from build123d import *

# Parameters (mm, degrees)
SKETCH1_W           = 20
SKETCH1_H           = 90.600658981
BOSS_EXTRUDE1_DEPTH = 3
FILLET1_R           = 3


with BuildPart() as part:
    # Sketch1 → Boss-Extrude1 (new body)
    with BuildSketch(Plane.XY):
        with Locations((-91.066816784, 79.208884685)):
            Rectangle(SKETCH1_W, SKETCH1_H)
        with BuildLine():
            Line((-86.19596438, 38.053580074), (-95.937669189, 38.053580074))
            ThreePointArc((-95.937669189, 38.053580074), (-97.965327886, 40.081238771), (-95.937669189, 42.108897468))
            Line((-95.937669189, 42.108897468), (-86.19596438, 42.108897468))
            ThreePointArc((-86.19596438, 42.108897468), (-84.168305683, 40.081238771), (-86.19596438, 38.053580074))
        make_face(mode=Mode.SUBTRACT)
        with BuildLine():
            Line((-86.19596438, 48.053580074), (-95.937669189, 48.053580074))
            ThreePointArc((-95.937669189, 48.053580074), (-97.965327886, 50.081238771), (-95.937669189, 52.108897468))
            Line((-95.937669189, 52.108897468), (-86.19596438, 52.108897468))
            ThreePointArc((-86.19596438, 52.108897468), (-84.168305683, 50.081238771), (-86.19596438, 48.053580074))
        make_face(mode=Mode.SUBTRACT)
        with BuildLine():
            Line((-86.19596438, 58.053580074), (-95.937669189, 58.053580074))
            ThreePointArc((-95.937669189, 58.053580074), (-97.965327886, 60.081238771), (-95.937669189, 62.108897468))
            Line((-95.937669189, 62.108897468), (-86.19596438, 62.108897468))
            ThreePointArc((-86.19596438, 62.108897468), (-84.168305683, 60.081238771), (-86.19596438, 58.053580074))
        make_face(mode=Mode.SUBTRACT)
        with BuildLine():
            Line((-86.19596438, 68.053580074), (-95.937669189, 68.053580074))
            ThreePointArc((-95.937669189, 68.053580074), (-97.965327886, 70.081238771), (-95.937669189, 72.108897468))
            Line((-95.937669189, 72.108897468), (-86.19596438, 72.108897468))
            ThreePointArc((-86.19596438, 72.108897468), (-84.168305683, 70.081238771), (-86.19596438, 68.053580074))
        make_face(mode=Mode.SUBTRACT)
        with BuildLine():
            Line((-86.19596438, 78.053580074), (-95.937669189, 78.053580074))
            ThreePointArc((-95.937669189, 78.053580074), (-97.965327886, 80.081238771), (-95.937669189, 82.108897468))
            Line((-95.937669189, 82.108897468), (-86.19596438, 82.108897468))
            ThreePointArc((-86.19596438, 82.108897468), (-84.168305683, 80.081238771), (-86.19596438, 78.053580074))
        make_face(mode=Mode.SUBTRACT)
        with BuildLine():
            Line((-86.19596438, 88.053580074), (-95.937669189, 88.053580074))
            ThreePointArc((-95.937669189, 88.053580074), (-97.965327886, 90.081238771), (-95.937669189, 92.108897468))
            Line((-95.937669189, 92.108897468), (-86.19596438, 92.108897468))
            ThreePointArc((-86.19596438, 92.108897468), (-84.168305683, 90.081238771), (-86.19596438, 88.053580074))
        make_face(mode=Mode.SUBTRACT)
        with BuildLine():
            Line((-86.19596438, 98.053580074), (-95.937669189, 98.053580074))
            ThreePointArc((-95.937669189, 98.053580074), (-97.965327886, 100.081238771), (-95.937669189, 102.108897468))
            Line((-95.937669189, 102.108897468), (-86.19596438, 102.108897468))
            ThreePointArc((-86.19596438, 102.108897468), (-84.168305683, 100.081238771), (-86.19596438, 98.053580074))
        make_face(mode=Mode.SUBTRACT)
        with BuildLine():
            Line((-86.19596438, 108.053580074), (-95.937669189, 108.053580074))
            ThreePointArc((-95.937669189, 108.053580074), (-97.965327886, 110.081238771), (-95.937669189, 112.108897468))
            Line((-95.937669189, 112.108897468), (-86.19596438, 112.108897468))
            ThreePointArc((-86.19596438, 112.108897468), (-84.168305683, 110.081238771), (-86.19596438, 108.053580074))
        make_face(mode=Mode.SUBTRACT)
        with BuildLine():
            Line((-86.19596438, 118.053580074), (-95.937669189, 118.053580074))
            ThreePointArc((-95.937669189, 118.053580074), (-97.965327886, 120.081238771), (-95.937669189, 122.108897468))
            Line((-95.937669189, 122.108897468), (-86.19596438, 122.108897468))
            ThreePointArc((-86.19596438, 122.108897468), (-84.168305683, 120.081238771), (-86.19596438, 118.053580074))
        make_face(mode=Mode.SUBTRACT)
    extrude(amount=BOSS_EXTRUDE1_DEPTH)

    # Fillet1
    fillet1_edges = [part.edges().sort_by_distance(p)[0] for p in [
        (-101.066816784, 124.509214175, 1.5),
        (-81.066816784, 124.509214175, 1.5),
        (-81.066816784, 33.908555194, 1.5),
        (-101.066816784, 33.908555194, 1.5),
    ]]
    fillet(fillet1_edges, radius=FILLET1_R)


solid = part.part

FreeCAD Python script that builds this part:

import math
import FreeCAD as App
import Part
import Sketcher
from FreeCAD import Vector
Q = App.Units.Quantity


def edges_at(feature, points):
    """Names of the edges that pass closest to the given points."""
    edges = feature.Shape.Edges
    near = lambda p: min(range(len(edges)), key=lambda i: edges[i].distToShape(Part.Vertex(*p))[0])
    return sorted({f"Edge{near(p) + 1}" for p in points})


def add_polygon(sketch, points):
    """Adds a closed chain of lines whose ends are joined by coincident constraints."""
    first, n = sketch.GeometryCount, len(points)
    for a, b in zip(points, points[1:] + points[:1]):
        sketch.addGeometry(Part.LineSegment(App.Vector(*a, 0), App.Vector(*b, 0)), False)
    for i in range(n):
        sketch.addConstraint(Sketcher.Constraint("Coincident", first + i, 2, first + (i + 1) % n, 1))

doc = App.newDocument("Part")
body = doc.addObject("PartDesign::Body", "Body")

# Sketch on XY plane
sketch1 = doc.addObject("Sketcher::SketchObject", "Sketch")
body.addObject(sketch1)
sketch1.AttachmentSupport = (doc.XY_Plane, [""])
sketch1.MapMode = "FlatFace"
add_polygon(sketch1, [(-101.1, 124.5), (-101.1, 33.9), (-81.1, 33.9), (-81.1, 124.5)])  # lines 0-3
sketch1.addGeometry(Part.ArcOfCircle(Part.Circle(Vector(-86.2, 40.1, 0), Vector(0, 0, 1), 2), math.radians(-90), math.radians(90)), False)  # 4
sketch1.addGeometry(Part.LineSegment(Vector(-86.2, 38.1, 0), Vector(-95.9, 38.1, 0)), False)  # 5
sketch1.addGeometry(Part.ArcOfCircle(Part.Circle(Vector(-95.9, 40.1, 0), Vector(0, 0, 1), 2), math.radians(90), math.radians(270)), False)  # 6
sketch1.addGeometry(Part.LineSegment(Vector(-95.9, 42.1, 0), Vector(-86.2, 42.1, 0)), False)  # 7
sketch1.addGeometry(Part.ArcOfCircle(Part.Circle(Vector(-86.2, 50.1, 0), Vector(0, 0, 1), 2), math.radians(-90), math.radians(90)), False)  # 8
sketch1.addGeometry(Part.LineSegment(Vector(-86.2, 48.1, 0), Vector(-95.9, 48.1, 0)), False)  # 9
sketch1.addGeometry(Part.ArcOfCircle(Part.Circle(Vector(-95.9, 50.1, 0), Vector(0, 0, 1), 2), math.radians(90), math.radians(270)), False)  # 10
sketch1.addGeometry(Part.LineSegment(Vector(-95.9, 52.1, 0), Vector(-86.2, 52.1, 0)), False)  # 11
sketch1.addGeometry(Part.ArcOfCircle(Part.Circle(Vector(-86.2, 60.1, 0), Vector(0, 0, 1), 2), math.radians(-90), math.radians(90)), False)  # 12
sketch1.addGeometry(Part.LineSegment(Vector(-86.2, 58.1, 0), Vector(-95.9, 58.1, 0)), False)  # 13
sketch1.addGeometry(Part.ArcOfCircle(Part.Circle(Vector(-95.9, 60.1, 0), Vector(0, 0, 1), 2), math.radians(90), math.radians(270)), False)  # 14
sketch1.addGeometry(Part.LineSegment(Vector(-95.9, 62.1, 0), Vector(-86.2, 62.1, 0)), False)  # 15
sketch1.addGeometry(Part.ArcOfCircle(Part.Circle(Vector(-86.2, 70.1, 0), Vector(0, 0, 1), 2), math.radians(-90), math.radians(90)), False)  # 16
sketch1.addGeometry(Part.LineSegment(Vector(-86.2, 68.1, 0), Vector(-95.9, 68.1, 0)), False)  # 17
sketch1.addGeometry(Part.ArcOfCircle(Part.Circle(Vector(-95.9, 70.1, 0), Vector(0, 0, 1), 2), math.radians(90), math.radians(270)), False)  # 18
sketch1.addGeometry(Part.LineSegment(Vector(-95.9, 72.1, 0), Vector(-86.2, 72.1, 0)), False)  # 19
sketch1.addGeometry(Part.ArcOfCircle(Part.Circle(Vector(-86.2, 80.1, 0), Vector(0, 0, 1), 2), math.radians(-90), math.radians(90)), False)  # 20
sketch1.addGeometry(Part.LineSegment(Vector(-86.2, 78.1, 0), Vector(-95.9, 78.1, 0)), False)  # 21
sketch1.addGeometry(Part.ArcOfCircle(Part.Circle(Vector(-95.9, 80.1, 0), Vector(0, 0, 1), 2), math.radians(90), math.radians(270)), False)  # 22
sketch1.addGeometry(Part.LineSegment(Vector(-95.9, 82.1, 0), Vector(-86.2, 82.1, 0)), False)  # 23
sketch1.addGeometry(Part.ArcOfCircle(Part.Circle(Vector(-86.2, 90.1, 0), Vector(0, 0, 1), 2), math.radians(-90), math.radians(90)), False)  # 24
sketch1.addGeometry(Part.LineSegment(Vector(-86.2, 88.1, 0), Vector(-95.9, 88.1, 0)), False)  # 25
sketch1.addGeometry(Part.ArcOfCircle(Part.Circle(Vector(-95.9, 90.1, 0), Vector(0, 0, 1), 2), math.radians(90), math.radians(270)), False)  # 26
sketch1.addGeometry(Part.LineSegment(Vector(-95.9, 92.1, 0), Vector(-86.2, 92.1, 0)), False)  # 27
sketch1.addGeometry(Part.ArcOfCircle(Part.Circle(Vector(-86.2, 100.1, 0), Vector(0, 0, 1), 2), math.radians(-90), math.radians(90)), False)  # 28
sketch1.addGeometry(Part.LineSegment(Vector(-86.2, 98.1, 0), Vector(-95.9, 98.1, 0)), False)  # 29
sketch1.addGeometry(Part.ArcOfCircle(Part.Circle(Vector(-95.9, 100.1, 0), Vector(0, 0, 1), 2), math.radians(90), math.radians(270)), False)  # 30
sketch1.addGeometry(Part.LineSegment(Vector(-95.9, 102.1, 0), Vector(-86.2, 102.1, 0)), False)  # 31
sketch1.addGeometry(Part.ArcOfCircle(Part.Circle(Vector(-86.2, 110.1, 0), Vector(0, 0, 1), 2), math.radians(-90), math.radians(90)), False)  # 32
sketch1.addGeometry(Part.LineSegment(Vector(-86.2, 108.1, 0), Vector(-95.9, 108.1, 0)), False)  # 33
sketch1.addGeometry(Part.ArcOfCircle(Part.Circle(Vector(-95.9, 110.1, 0), Vector(0, 0, 1), 2), math.radians(90), math.radians(270)), False)  # 34
sketch1.addGeometry(Part.LineSegment(Vector(-95.9, 112.1, 0), Vector(-86.2, 112.1, 0)), False)  # 35
sketch1.addGeometry(Part.ArcOfCircle(Part.Circle(Vector(-86.2, 120.1, 0), Vector(0, 0, 1), 2), math.radians(-90), math.radians(90)), False)  # 36
sketch1.addGeometry(Part.LineSegment(Vector(-86.2, 118.1, 0), Vector(-95.9, 118.1, 0)), False)  # 37
sketch1.addGeometry(Part.ArcOfCircle(Part.Circle(Vector(-95.9, 120.1, 0), Vector(0, 0, 1), 2), math.radians(90), math.radians(270)), False)  # 38
sketch1.addGeometry(Part.LineSegment(Vector(-95.9, 122.1, 0), Vector(-86.2, 122.1, 0)), False)  # 39
sketch1.addConstraint([
    Sketcher.Constraint("Tangent", 4, 1, 5, 1),
    Sketcher.Constraint("Tangent", 5, 2, 6, 2),
    Sketcher.Constraint("Tangent", 6, 1, 7, 1),
    Sketcher.Constraint("Tangent", 7, 2, 4, 2),
    Sketcher.Constraint("Tangent", 8, 1, 9, 1),
    Sketcher.Constraint("Tangent", 9, 2, 10, 2),
    Sketcher.Constraint("Tangent", 10, 1, 11, 1),
    Sketcher.Constraint("Tangent", 11, 2, 8, 2),
    Sketcher.Constraint("Tangent", 12, 1, 13, 1),
    Sketcher.Constraint("Tangent", 13, 2, 14, 2),
    Sketcher.Constraint("Tangent", 14, 1, 15, 1),
    Sketcher.Constraint("Tangent", 15, 2, 12, 2),
    Sketcher.Constraint("Tangent", 16, 1, 17, 1),
    Sketcher.Constraint("Tangent", 17, 2, 18, 2),
    Sketcher.Constraint("Tangent", 18, 1, 19, 1),
    Sketcher.Constraint("Tangent", 19, 2, 16, 2),
    Sketcher.Constraint("Tangent", 20, 1, 21, 1),
    Sketcher.Constraint("Tangent", 21, 2, 22, 2),
    Sketcher.Constraint("Tangent", 22, 1, 23, 1),
    Sketcher.Constraint("Tangent", 23, 2, 20, 2),
    Sketcher.Constraint("Tangent", 24, 1, 25, 1),
    Sketcher.Constraint("Tangent", 25, 2, 26, 2),
    Sketcher.Constraint("Tangent", 26, 1, 27, 1),
    Sketcher.Constraint("Tangent", 27, 2, 24, 2),
    Sketcher.Constraint("Tangent", 28, 1, 29, 1),
    Sketcher.Constraint("Tangent", 29, 2, 30, 2),
    Sketcher.Constraint("Tangent", 30, 1, 31, 1),
    Sketcher.Constraint("Tangent", 31, 2, 28, 2),
    Sketcher.Constraint("Tangent", 32, 1, 33, 1),
    Sketcher.Constraint("Tangent", 33, 2, 34, 2),
    Sketcher.Constraint("Tangent", 34, 1, 35, 1),
    Sketcher.Constraint("Tangent", 35, 2, 32, 2),
    Sketcher.Constraint("Tangent", 36, 1, 37, 1),
    Sketcher.Constraint("Tangent", 37, 2, 38, 2),
    Sketcher.Constraint("Tangent", 38, 1, 39, 1),
    Sketcher.Constraint("Tangent", 39, 2, 36, 2),
    Sketcher.Constraint("Vertical", 0),
    Sketcher.Constraint("Horizontal", 1),
    Sketcher.Constraint("Vertical", 2),
    Sketcher.Constraint("Horizontal", 3),
    Sketcher.Constraint("Horizontal", 5),
    Sketcher.Constraint("Horizontal", 7),
    Sketcher.Constraint("Horizontal", 9),
    Sketcher.Constraint("Horizontal", 11),
    Sketcher.Constraint("Horizontal", 13),
    Sketcher.Constraint("Horizontal", 15),
    Sketcher.Constraint("Horizontal", 17),
    Sketcher.Constraint("Horizontal", 19),
    Sketcher.Constraint("Horizontal", 21),
    Sketcher.Constraint("Horizontal", 23),
    Sketcher.Constraint("Horizontal", 25),
    Sketcher.Constraint("Horizontal", 27),
    Sketcher.Constraint("Horizontal", 29),
    Sketcher.Constraint("Horizontal", 31),
    Sketcher.Constraint("Horizontal", 33),
    Sketcher.Constraint("Horizontal", 35),
    Sketcher.Constraint("Horizontal", 37),
    Sketcher.Constraint("Horizontal", 39),
    Sketcher.Constraint("Equal", 6, 8),
    Sketcher.Constraint("Equal", 10, 12),
    Sketcher.Constraint("Equal", 14, 16),
    Sketcher.Constraint("Equal", 18, 20),
    Sketcher.Constraint("Equal", 22, 24),
    Sketcher.Constraint("Equal", 26, 28),
    Sketcher.Constraint("Equal", 30, 32),
    Sketcher.Constraint("Equal", 34, 36),
    Sketcher.Constraint("Vertical", 4, 3, 8, 3),
    Sketcher.Constraint("Vertical", 6, 3, 10, 3),
    Sketcher.Constraint("Vertical", 8, 3, 12, 3),
    Sketcher.Constraint("Vertical", 10, 3, 14, 3),
    Sketcher.Constraint("Vertical", 12, 3, 16, 3),
    Sketcher.Constraint("Vertical", 14, 3, 18, 3),
    Sketcher.Constraint("Vertical", 16, 3, 20, 3),
    Sketcher.Constraint("Vertical", 18, 3, 22, 3),
    Sketcher.Constraint("Vertical", 20, 3, 24, 3),
    Sketcher.Constraint("Vertical", 22, 3, 26, 3),
    Sketcher.Constraint("Vertical", 24, 3, 28, 3),
    Sketcher.Constraint("Vertical", 26, 3, 30, 3),
    Sketcher.Constraint("Vertical", 28, 3, 32, 3),
    Sketcher.Constraint("Vertical", 30, 3, 34, 3),
    Sketcher.Constraint("Vertical", 32, 3, 36, 3),
    Sketcher.Constraint("Vertical", 34, 3, 38, 3),
    Sketcher.Constraint("DistanceX", 1, 1, 1, 2, Q("20 mm")),
    Sketcher.Constraint("DistanceY", 4, 3, 8, 3, Q("10 mm")),
    Sketcher.Constraint("DistanceY", 8, 3, 12, 3, Q("10 mm")),
    Sketcher.Constraint("DistanceY", 12, 3, 16, 3, Q("10 mm")),
    Sketcher.Constraint("DistanceY", 16, 3, 20, 3, Q("10 mm")),
    Sketcher.Constraint("DistanceY", 20, 3, 24, 3, Q("10 mm")),
    Sketcher.Constraint("DistanceY", 24, 3, 28, 3, Q("10 mm")),
    Sketcher.Constraint("DistanceY", 28, 3, 32, 3, Q("10 mm")),
    Sketcher.Constraint("DistanceY", 32, 3, 36, 3, Q("10 mm")),
    Sketcher.Constraint("Radius", 4, Q("2.027659 mm")),
    Sketcher.Constraint("DistanceY", 0, 2, 0, 1, Q("90.600659 mm")),
    Sketcher.Constraint("DistanceX", 5, 2, 5, 1, Q("9.741705 mm")),
    Sketcher.Constraint("DistanceY", -1, 1, 4, 3, Q("40.081239 mm")),
    Sketcher.Constraint("DistanceX", 6, 3, -1, 1, Q("95.937669 mm")),
    Sketcher.Constraint("DistanceX", 0, 2, -1, 1, Q("101.066817 mm")),
    Sketcher.Constraint("DistanceY", -1, 1, 0, 2, Q("33.908555 mm")),
])
pad1 = doc.addObject("PartDesign::Pad", "Pad")
body.addObject(pad1)
pad1.Profile = sketch1
pad1.Length = 3
doc.recompute()

fillet = doc.addObject("PartDesign::Fillet", "Fillet")
body.addObject(fillet)
fillet.Base = (pad1, edges_at(pad1, [
    (-101.067, 124.509, 1.5),
    (-81.067, 124.509, 1.5),
    (-81.067, 33.909, 1.5),
    (-101.067, 33.909, 1.5),
]))
fillet.Radius = 3

doc.recompute()
